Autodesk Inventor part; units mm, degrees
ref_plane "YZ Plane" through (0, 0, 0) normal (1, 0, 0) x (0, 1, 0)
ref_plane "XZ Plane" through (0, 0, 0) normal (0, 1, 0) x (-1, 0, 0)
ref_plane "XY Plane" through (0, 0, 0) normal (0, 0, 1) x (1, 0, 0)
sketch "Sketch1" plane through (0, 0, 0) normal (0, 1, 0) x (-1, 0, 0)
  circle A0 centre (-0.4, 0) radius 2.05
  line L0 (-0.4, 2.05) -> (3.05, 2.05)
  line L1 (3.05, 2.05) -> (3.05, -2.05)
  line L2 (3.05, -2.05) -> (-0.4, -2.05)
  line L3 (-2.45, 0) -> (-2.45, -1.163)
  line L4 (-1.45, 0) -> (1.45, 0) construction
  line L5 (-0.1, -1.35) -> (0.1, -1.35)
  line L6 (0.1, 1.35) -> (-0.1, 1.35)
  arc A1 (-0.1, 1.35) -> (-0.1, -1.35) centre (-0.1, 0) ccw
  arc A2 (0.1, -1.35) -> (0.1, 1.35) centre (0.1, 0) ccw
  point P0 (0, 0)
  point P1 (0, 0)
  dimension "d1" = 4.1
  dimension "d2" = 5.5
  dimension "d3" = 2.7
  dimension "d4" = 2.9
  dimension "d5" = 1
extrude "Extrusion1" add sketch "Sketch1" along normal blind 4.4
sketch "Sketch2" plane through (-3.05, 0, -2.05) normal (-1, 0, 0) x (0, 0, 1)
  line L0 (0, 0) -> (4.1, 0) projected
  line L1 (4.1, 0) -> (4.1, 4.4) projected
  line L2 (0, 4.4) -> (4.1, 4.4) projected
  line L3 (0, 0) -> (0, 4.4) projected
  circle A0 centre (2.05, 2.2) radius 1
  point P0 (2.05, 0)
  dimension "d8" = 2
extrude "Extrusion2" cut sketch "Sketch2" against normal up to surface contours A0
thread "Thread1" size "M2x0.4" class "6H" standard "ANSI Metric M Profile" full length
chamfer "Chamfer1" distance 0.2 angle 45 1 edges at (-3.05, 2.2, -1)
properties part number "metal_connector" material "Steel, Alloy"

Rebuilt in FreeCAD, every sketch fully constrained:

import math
import FreeCAD as App
import Part
import Sketcher
from FreeCAD import Vector
Q = App.Units.Quantity


def edges_at(feature, points):
    """Names of the edges that pass closest to the given points."""
    edges = feature.Shape.Edges
    near = lambda p: min(range(len(edges)), key=lambda i: edges[i].distToShape(Part.Vertex(*p))[0])
    return sorted({f"Edge{near(p) + 1}" for p in points})

doc = App.newDocument("Part")
body = doc.addObject("PartDesign::Body", "Body")

# Sketch on XZ plane
sketch1 = body.newObject("Sketcher::SketchObject", "Sketch")
sketch1.AttachmentSupport = (doc.getObject("XZ_Plane"), [""])
sketch1.MapMode = "FlatFace"
sketch1.addGeometry([
    Part.LineSegment(Vector(0.4, -2.05, 0), Vector(-3.05, -2.05, 0)),  # 0
    Part.LineSegment(Vector(-3.05, -2.05, 0), Vector(-3.05, 2.05, 0)),  # 1
    Part.LineSegment(Vector(-3.05, 2.05, 0), Vector(0.4, 2.05, 0)),  # 2
    Part.ArcOfCircle(Part.Circle(Vector(0.4, 0, 0), Vector(0, 0, 1), 2.05), math.radians(-90), math.radians(90)),  # 3
    Part.LineSegment(Vector(-0.1, -1.35, 0), Vector(0.1, -1.35, 0)),  # 4
    Part.ArcOfCircle(Part.Circle(Vector(0.1, 0, 0), Vector(0, 0, 1), 1.35), math.radians(-90), math.radians(90)),  # 5
    Part.LineSegment(Vector(0.1, 1.35, 0), Vector(-0.1, 1.35, 0)),  # 6
    Part.ArcOfCircle(Part.Circle(Vector(-0.1, 0, 0), Vector(0, 0, 1), 1.35), math.radians(90), math.radians(270)),  # 7
], False)
sketch1.addConstraint([
    Sketcher.Constraint("Coincident", 0, 2, 1, 1),
    Sketcher.Constraint("Coincident", 1, 2, 2, 1),
    Sketcher.Constraint("Tangent", 2, 2, 3, 2),
    Sketcher.Constraint("Tangent", 3, 1, 0, 1),
    Sketcher.Constraint("Tangent", 4, 2, 5, 1),
    Sketcher.Constraint("Tangent", 5, 2, 6, 1),
    Sketcher.Constraint("Tangent", 6, 2, 7, 1),
    Sketcher.Constraint("Tangent", 7, 2, 4, 1),
    Sketcher.Constraint("Horizontal", 0),
    Sketcher.Constraint("Vertical", 1),
    Sketcher.Constraint("Horizontal", 2),
    Sketcher.Constraint("Horizontal", 4),
    Sketcher.Constraint("Horizontal", 6),
    Sketcher.Constraint("Symmetric", 5, 3, 7, 3, -1, 1),
    Sketcher.Constraint("PointOnObject", 3, 3, -1),
    Sketcher.Constraint("Radius", 3, Q("2.05 mm")),
    Sketcher.Constraint("Radius", 5, Q("1.35 mm")),
    Sketcher.Constraint("DistanceX", 4, 1, 4, 2, Q("0.2 mm")),
    Sketcher.Constraint("DistanceX", 0, 2, 0, 1, Q("3.45 mm")),
    Sketcher.Constraint("DistanceX", -1, 1, 3, 3, Q("0.4 mm")),
])
pad1 = body.newObject("PartDesign::Pad", "Pad")
pad1.Profile = sketch1
pad1.Length = 4.4
pad1.Reversed = True

# Sketch on YZ plane
sketch2 = body.newObject("Sketcher::SketchObject", "Sketch001")
sketch2.AttachmentSupport = (doc.getObject("YZ_Plane"), [""])
sketch2.MapMode = "FlatFace"
sketch2.AttachmentOffset = App.Placement(Vector(0, 0, -3.05), App.Rotation())
sketch2.addGeometry(Part.Circle(Vector(2.2, 0, 0), Vector(0, 0, 1), 1), False)
sketch2.addConstraint([
    Sketcher.Constraint("PointOnObject", 0, 3, -1),
    Sketcher.Constraint("Diameter", 0, Q("2 mm")),
    Sketcher.Constraint("DistanceX", -1, 1, 0, 3, Q("2.2 mm")),
])
pocket1 = body.newObject("PartDesign::Pocket", "Pocket")
pocket1.Profile = sketch2
pocket1.Type = "UpToFirst"
pocket1.Reversed = True
doc.recompute()

chamfer = body.newObject("PartDesign::Chamfer", "Chamfer")
chamfer.Base = (pocket1, edges_at(pocket1, [(-3.05, 2.2, -1)]))
chamfer.Size = 0.2

doc.recompute()
